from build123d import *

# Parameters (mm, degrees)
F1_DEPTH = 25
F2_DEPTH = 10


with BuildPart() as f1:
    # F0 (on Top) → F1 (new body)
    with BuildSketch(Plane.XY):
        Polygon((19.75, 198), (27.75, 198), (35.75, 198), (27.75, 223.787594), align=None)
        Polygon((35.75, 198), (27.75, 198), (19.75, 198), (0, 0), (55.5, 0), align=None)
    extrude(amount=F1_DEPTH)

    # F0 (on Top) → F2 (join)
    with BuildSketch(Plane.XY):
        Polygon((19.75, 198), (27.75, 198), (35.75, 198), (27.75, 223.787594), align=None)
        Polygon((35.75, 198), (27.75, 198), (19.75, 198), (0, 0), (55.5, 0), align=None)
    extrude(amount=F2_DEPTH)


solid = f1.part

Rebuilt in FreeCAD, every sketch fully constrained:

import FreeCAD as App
import Part
import Sketcher

V = App.Vector
Q = App.Units.Quantity

doc = App.newDocument("Part")
body = doc.addObject("PartDesign::Body", "Body")

# Sketch on XY plane
sketch1 = doc.addObject("Sketcher::SketchObject", "Sketch")
body.addObject(sketch1)
sketch1.AttachmentSupport = (doc.XY_Plane, [""])
sketch1.MapMode = "FlatFace"
sketch1.addGeometry([
    Part.LineSegment(V(36, 198, 0), V(28, 224, 0)),  # 0
    Part.LineSegment(V(28, 224, 0), V(20, 198, 0)),  # 1
    Part.LineSegment(V(20, 198, 0), V(0, 0, 0)),  # 2
    Part.LineSegment(V(0, 0, 0), V(56, 0, 0)),  # 3
    Part.LineSegment(V(56, 0, 0), V(36, 198, 0)),  # 4
], False)
sketch1.addConstraint([
    Sketcher.Constraint("Coincident", 0, 2, 1, 1),
    Sketcher.Constraint("Coincident", 1, 2, 2, 1),
    Sketcher.Constraint("Coincident", 2, 2, 3, 1),
    Sketcher.Constraint("Coincident", 3, 2, 4, 1),
    Sketcher.Constraint("Coincident", 4, 2, 0, 1),
    Sketcher.Constraint("Horizontal", 3),
    Sketcher.Constraint("Coincident", 2, 2, -1, 1),
    Sketcher.Constraint("Horizontal", 1, 2, 4, 2),
    Sketcher.Constraint("Equal", 0, 1),
    Sketcher.Constraint("Equal", 2, 4),
    Sketcher.Constraint("Distance", 0, Q("27 mm")),
    Sketcher.Constraint("DistanceX", 3, 1, 3, 2, Q("55.5 mm")),
    Sketcher.Constraint("DistanceY", -1, 1, 1, 2, Q("198 mm")),
    Sketcher.Constraint("DistanceX", 1, 2, 0, 2, Q("8 mm")),
])
pad1 = doc.addObject("PartDesign::Pad", "Pad")
body.addObject(pad1)
pad1.Profile = sketch1
pad1.Length = 25

# Sketch on XY plane
sketch2 = doc.addObject("Sketcher::SketchObject", "Sketch001")
body.addObject(sketch2)
sketch2.AttachmentSupport = (doc.XY_Plane, [""])
sketch2.MapMode = "FlatFace"
sketch2.addGeometry([
    Part.LineSegment(V(36, 198, 0), V(28, 224, 0)),  # 0
    Part.LineSegment(V(28, 224, 0), V(20, 198, 0)),  # 1
    Part.LineSegment(V(20, 198, 0), V(0, 0, 0)),  # 2
    Part.LineSegment(V(0, 0, 0), V(56, 0, 0)),  # 3
    Part.LineSegment(V(56, 0, 0), V(36, 198, 0)),  # 4
], False)
sketch2.addConstraint([
    Sketcher.Constraint("Coincident", 0, 2, 1, 1),
    Sketcher.Constraint("Coincident", 1, 2, 2, 1),
    Sketcher.Constraint("Coincident", 2, 2, 3, 1),
    Sketcher.Constraint("Coincident", 3, 2, 4, 1),
    Sketcher.Constraint("Coincident", 4, 2, 0, 1),
    Sketcher.Constraint("Horizontal", 3),
    Sketcher.Constraint("Coincident", 2, 2, -1, 1),
    Sketcher.Constraint("Horizontal", 1, 2, 4, 2),
    Sketcher.Constraint("Equal", 0, 1),
    Sketcher.Constraint("Equal", 2, 4),
    Sketcher.Constraint("Distance", 0, Q("27 mm")),
    Sketcher.Constraint("DistanceX", 3, 1, 3, 2, Q("55.5 mm")),
    Sketcher.Constraint("DistanceY", -1, 1, 1, 2, Q("198 mm")),
    Sketcher.Constraint("DistanceX", 1, 2, 0, 2, Q("8 mm")),
])
pad2 = doc.addObject("PartDesign::Pad", "Pad001")
body.addObject(pad2)
pad2.Profile = sketch2
pad2.Length = 10

doc.recompute()
